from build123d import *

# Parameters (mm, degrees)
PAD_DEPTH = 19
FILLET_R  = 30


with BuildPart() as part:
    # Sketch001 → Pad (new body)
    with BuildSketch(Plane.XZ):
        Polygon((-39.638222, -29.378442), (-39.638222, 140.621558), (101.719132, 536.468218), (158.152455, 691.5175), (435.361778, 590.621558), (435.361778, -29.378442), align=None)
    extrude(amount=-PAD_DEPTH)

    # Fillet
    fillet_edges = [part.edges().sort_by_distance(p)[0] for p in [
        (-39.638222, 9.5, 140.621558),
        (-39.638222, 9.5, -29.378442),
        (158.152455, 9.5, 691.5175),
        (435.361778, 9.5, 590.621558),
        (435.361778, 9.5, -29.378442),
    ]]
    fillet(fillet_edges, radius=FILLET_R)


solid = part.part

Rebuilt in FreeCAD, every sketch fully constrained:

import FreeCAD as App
import Part
import Sketcher

V = App.Vector
Q = App.Units.Quantity


def edges_at(feature, points):
    """Names of the edges that pass closest to the given points."""
    edges = feature.Shape.Edges
    near = lambda p: min(range(len(edges)), key=lambda i: edges[i].distToShape(Part.Vertex(*p))[0])
    return sorted({f"Edge{near(p) + 1}" for p in points})

doc = App.newDocument("Part")
body = doc.addObject("PartDesign::Body", "Body")

# Sketch on XZ plane
sketch1 = body.newObject("Sketcher::SketchObject", "Sketch")
sketch1.AttachmentSupport = (doc.getObject("XZ_Plane"), [""])
sketch1.MapMode = "FlatFace"
sketch1.addGeometry([
    Part.LineSegment(V(-39.638222, 140.621558, 0), V(-39.638222, -29.378442, 0)),  # 0
    Part.LineSegment(V(-39.638222, -29.378442, 0), V(435.361778, -29.378442, 0)),  # 1
    Part.LineSegment(V(435.361778, -29.378442, 0), V(435.361778, 590.621558, 0)),  # 2
    Part.LineSegment(V(435.361778, 590.621558, 0), V(158.152455, 691.5175, 0)),  # 3
    Part.LineSegment(V(158.152455, 691.5175, 0), V(101.719132, 536.468218, 0)),  # 4
    Part.LineSegment(V(101.719132, 536.468218, 0), V(-39.638222, 140.621558, 0)),  # 5
], False)
sketch1.addConstraint([
    Sketcher.Constraint("Coincident", 0, 2, 1, 1),
    Sketcher.Constraint("Coincident", 1, 2, 2, 1),
    Sketcher.Constraint("Coincident", 2, 2, 3, 1),
    Sketcher.Constraint("Coincident", 3, 2, 4, 1),
    Sketcher.Constraint("Coincident", 4, 2, 5, 1),
    Sketcher.Constraint("Coincident", 5, 2, 0, 1),
    Sketcher.Constraint("Vertical", 0),
    Sketcher.Constraint("Horizontal", 1),
    Sketcher.Constraint("Vertical", 2),
    Sketcher.Constraint("Perpendicular", 3, 4),
    Sketcher.Constraint("DistanceX", 1, 1, 1, 2, Q("475 mm")),
    Sketcher.Constraint("DistanceY", 0, 2, 0, 1, Q("170 mm")),
    Sketcher.Constraint("DistanceY", 2, 1, 2, 2, Q("620 mm")),
    Sketcher.Constraint("Angle", 3, Q("160 deg")),
    Sketcher.Constraint("Distance", 3, Q("295 mm")),
    Sketcher.Constraint("Distance", 4, Q("164.999999 mm")),
    Sketcher.Constraint("DistanceY", -1, 1, 3, 2, Q("691.5175 mm")),
    Sketcher.Constraint("DistanceX", -1, 1, 1, 2, Q("435.361778 mm")),
])
pad1 = body.newObject("PartDesign::Pad", "Pad")
pad1.Profile = sketch1
pad1.Length = 19
pad1.Reversed = True
doc.recompute()

fillet = body.newObject("PartDesign::Fillet", "Fillet")
fillet.Base = (pad1, edges_at(pad1, [
    (-39.638, 9.5, 140.622),
    (-39.638, 9.5, -29.378),
    (158.152, 9.5, 691.518),
    (435.362, 9.5, 590.622),
    (435.362, 9.5, -29.378),
]))
fillet.Radius = 30

doc.recompute()
